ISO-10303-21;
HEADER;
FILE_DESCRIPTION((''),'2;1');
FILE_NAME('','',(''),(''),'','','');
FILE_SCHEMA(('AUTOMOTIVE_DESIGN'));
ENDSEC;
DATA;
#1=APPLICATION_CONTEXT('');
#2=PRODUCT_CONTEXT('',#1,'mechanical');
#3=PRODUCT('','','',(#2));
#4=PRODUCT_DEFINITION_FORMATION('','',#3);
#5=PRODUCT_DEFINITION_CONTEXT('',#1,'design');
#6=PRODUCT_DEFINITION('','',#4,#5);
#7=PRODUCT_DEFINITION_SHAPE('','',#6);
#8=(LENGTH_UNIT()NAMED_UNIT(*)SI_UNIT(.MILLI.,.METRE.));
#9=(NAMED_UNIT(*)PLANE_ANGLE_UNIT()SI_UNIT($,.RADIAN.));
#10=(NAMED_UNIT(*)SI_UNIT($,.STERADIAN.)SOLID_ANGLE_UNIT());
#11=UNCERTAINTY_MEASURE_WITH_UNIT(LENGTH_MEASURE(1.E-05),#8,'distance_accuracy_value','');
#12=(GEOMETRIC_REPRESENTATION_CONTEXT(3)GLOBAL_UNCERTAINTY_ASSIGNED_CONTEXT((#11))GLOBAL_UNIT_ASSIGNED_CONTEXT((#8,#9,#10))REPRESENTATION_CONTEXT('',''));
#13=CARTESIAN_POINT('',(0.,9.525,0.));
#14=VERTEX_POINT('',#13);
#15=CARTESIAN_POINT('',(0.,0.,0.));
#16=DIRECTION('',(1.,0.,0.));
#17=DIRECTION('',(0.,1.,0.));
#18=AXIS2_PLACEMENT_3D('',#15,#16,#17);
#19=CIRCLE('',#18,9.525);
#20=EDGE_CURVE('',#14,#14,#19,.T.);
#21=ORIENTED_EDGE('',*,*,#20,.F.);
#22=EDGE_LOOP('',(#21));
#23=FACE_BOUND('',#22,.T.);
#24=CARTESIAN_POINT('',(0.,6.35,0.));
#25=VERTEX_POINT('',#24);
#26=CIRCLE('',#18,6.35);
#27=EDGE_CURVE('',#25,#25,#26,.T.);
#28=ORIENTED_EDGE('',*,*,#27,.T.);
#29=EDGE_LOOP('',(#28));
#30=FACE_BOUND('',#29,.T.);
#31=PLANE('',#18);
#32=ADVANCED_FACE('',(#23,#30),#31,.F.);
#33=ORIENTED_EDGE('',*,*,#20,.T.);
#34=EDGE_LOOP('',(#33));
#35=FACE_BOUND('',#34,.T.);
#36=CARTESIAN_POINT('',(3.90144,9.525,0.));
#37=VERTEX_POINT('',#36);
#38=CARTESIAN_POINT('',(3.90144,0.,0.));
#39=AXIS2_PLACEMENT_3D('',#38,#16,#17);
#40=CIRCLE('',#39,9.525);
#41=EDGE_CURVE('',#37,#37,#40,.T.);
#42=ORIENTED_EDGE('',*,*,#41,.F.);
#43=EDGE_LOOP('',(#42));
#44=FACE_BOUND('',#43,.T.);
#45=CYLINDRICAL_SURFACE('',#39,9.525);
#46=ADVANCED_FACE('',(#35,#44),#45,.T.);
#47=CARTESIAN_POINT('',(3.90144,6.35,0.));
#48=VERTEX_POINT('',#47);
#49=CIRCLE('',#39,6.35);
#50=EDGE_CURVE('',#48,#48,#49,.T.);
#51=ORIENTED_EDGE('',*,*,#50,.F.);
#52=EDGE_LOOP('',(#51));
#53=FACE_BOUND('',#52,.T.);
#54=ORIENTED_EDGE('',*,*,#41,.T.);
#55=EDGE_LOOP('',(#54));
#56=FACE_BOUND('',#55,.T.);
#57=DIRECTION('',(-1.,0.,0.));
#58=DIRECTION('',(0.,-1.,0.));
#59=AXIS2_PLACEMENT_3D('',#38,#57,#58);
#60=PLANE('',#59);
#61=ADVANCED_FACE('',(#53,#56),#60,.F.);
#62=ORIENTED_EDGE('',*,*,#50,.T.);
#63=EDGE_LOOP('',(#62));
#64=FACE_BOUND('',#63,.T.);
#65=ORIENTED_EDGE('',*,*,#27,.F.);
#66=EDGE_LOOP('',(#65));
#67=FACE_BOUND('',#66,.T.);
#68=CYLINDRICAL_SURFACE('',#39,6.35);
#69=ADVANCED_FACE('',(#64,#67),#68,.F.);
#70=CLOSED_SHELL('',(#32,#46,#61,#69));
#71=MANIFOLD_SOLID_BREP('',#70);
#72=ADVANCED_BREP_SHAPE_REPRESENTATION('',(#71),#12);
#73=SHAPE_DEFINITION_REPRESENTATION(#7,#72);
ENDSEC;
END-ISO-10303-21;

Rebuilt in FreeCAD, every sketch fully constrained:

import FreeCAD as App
import Part
import Sketcher
from FreeCAD import Vector
Q = App.Units.Quantity


def add_polygon(sketch, points):
    """Adds a closed chain of lines whose ends are joined by coincident constraints."""
    first, n = sketch.GeometryCount, len(points)
    for a, b in zip(points, points[1:] + points[:1]):
        sketch.addGeometry(Part.LineSegment(App.Vector(*a, 0), App.Vector(*b, 0)), False)
    for i in range(n):
        sketch.addConstraint(Sketcher.Constraint("Coincident", first + i, 2, first + (i + 1) % n, 1))

doc = App.newDocument("Part")
body = doc.addObject("PartDesign::Body", "Body")

# Sketch on XY plane
sketch1 = doc.addObject("Sketcher::SketchObject", "Sketch")
body.addObject(sketch1)
sketch1.AttachmentSupport = (doc.XY_Plane, [""])
sketch1.MapMode = "FlatFace"
add_polygon(sketch1, [(0, 9.5), (0, 6.3), (3.9, 6.3), (3.9, 9.5)])  # lines 0-3
sketch1.addConstraint([
    Sketcher.Constraint("Vertical", 0),
    Sketcher.Constraint("Horizontal", 1),
    Sketcher.Constraint("Vertical", 2),
    Sketcher.Constraint("Horizontal", 3),
    Sketcher.Constraint("PointOnObject", 0, 2, -2),
    Sketcher.Constraint("DistanceY", 0, 2, 0, 1, Q("0.125 in")),
    Sketcher.Constraint("DistanceY", -1, 1, 0, 2, Q("0.25 in")),
    Sketcher.Constraint("DistanceX", 1, 1, 1, 2, Q("0.1536 in")),
])
revolution = doc.addObject("PartDesign::Revolution", "Revolution")
body.addObject(revolution)
revolution.Profile = sketch1
revolution.ReferenceAxis = (sketch1, ["H_Axis"])
revolution.Angle = 360

doc.recompute()
